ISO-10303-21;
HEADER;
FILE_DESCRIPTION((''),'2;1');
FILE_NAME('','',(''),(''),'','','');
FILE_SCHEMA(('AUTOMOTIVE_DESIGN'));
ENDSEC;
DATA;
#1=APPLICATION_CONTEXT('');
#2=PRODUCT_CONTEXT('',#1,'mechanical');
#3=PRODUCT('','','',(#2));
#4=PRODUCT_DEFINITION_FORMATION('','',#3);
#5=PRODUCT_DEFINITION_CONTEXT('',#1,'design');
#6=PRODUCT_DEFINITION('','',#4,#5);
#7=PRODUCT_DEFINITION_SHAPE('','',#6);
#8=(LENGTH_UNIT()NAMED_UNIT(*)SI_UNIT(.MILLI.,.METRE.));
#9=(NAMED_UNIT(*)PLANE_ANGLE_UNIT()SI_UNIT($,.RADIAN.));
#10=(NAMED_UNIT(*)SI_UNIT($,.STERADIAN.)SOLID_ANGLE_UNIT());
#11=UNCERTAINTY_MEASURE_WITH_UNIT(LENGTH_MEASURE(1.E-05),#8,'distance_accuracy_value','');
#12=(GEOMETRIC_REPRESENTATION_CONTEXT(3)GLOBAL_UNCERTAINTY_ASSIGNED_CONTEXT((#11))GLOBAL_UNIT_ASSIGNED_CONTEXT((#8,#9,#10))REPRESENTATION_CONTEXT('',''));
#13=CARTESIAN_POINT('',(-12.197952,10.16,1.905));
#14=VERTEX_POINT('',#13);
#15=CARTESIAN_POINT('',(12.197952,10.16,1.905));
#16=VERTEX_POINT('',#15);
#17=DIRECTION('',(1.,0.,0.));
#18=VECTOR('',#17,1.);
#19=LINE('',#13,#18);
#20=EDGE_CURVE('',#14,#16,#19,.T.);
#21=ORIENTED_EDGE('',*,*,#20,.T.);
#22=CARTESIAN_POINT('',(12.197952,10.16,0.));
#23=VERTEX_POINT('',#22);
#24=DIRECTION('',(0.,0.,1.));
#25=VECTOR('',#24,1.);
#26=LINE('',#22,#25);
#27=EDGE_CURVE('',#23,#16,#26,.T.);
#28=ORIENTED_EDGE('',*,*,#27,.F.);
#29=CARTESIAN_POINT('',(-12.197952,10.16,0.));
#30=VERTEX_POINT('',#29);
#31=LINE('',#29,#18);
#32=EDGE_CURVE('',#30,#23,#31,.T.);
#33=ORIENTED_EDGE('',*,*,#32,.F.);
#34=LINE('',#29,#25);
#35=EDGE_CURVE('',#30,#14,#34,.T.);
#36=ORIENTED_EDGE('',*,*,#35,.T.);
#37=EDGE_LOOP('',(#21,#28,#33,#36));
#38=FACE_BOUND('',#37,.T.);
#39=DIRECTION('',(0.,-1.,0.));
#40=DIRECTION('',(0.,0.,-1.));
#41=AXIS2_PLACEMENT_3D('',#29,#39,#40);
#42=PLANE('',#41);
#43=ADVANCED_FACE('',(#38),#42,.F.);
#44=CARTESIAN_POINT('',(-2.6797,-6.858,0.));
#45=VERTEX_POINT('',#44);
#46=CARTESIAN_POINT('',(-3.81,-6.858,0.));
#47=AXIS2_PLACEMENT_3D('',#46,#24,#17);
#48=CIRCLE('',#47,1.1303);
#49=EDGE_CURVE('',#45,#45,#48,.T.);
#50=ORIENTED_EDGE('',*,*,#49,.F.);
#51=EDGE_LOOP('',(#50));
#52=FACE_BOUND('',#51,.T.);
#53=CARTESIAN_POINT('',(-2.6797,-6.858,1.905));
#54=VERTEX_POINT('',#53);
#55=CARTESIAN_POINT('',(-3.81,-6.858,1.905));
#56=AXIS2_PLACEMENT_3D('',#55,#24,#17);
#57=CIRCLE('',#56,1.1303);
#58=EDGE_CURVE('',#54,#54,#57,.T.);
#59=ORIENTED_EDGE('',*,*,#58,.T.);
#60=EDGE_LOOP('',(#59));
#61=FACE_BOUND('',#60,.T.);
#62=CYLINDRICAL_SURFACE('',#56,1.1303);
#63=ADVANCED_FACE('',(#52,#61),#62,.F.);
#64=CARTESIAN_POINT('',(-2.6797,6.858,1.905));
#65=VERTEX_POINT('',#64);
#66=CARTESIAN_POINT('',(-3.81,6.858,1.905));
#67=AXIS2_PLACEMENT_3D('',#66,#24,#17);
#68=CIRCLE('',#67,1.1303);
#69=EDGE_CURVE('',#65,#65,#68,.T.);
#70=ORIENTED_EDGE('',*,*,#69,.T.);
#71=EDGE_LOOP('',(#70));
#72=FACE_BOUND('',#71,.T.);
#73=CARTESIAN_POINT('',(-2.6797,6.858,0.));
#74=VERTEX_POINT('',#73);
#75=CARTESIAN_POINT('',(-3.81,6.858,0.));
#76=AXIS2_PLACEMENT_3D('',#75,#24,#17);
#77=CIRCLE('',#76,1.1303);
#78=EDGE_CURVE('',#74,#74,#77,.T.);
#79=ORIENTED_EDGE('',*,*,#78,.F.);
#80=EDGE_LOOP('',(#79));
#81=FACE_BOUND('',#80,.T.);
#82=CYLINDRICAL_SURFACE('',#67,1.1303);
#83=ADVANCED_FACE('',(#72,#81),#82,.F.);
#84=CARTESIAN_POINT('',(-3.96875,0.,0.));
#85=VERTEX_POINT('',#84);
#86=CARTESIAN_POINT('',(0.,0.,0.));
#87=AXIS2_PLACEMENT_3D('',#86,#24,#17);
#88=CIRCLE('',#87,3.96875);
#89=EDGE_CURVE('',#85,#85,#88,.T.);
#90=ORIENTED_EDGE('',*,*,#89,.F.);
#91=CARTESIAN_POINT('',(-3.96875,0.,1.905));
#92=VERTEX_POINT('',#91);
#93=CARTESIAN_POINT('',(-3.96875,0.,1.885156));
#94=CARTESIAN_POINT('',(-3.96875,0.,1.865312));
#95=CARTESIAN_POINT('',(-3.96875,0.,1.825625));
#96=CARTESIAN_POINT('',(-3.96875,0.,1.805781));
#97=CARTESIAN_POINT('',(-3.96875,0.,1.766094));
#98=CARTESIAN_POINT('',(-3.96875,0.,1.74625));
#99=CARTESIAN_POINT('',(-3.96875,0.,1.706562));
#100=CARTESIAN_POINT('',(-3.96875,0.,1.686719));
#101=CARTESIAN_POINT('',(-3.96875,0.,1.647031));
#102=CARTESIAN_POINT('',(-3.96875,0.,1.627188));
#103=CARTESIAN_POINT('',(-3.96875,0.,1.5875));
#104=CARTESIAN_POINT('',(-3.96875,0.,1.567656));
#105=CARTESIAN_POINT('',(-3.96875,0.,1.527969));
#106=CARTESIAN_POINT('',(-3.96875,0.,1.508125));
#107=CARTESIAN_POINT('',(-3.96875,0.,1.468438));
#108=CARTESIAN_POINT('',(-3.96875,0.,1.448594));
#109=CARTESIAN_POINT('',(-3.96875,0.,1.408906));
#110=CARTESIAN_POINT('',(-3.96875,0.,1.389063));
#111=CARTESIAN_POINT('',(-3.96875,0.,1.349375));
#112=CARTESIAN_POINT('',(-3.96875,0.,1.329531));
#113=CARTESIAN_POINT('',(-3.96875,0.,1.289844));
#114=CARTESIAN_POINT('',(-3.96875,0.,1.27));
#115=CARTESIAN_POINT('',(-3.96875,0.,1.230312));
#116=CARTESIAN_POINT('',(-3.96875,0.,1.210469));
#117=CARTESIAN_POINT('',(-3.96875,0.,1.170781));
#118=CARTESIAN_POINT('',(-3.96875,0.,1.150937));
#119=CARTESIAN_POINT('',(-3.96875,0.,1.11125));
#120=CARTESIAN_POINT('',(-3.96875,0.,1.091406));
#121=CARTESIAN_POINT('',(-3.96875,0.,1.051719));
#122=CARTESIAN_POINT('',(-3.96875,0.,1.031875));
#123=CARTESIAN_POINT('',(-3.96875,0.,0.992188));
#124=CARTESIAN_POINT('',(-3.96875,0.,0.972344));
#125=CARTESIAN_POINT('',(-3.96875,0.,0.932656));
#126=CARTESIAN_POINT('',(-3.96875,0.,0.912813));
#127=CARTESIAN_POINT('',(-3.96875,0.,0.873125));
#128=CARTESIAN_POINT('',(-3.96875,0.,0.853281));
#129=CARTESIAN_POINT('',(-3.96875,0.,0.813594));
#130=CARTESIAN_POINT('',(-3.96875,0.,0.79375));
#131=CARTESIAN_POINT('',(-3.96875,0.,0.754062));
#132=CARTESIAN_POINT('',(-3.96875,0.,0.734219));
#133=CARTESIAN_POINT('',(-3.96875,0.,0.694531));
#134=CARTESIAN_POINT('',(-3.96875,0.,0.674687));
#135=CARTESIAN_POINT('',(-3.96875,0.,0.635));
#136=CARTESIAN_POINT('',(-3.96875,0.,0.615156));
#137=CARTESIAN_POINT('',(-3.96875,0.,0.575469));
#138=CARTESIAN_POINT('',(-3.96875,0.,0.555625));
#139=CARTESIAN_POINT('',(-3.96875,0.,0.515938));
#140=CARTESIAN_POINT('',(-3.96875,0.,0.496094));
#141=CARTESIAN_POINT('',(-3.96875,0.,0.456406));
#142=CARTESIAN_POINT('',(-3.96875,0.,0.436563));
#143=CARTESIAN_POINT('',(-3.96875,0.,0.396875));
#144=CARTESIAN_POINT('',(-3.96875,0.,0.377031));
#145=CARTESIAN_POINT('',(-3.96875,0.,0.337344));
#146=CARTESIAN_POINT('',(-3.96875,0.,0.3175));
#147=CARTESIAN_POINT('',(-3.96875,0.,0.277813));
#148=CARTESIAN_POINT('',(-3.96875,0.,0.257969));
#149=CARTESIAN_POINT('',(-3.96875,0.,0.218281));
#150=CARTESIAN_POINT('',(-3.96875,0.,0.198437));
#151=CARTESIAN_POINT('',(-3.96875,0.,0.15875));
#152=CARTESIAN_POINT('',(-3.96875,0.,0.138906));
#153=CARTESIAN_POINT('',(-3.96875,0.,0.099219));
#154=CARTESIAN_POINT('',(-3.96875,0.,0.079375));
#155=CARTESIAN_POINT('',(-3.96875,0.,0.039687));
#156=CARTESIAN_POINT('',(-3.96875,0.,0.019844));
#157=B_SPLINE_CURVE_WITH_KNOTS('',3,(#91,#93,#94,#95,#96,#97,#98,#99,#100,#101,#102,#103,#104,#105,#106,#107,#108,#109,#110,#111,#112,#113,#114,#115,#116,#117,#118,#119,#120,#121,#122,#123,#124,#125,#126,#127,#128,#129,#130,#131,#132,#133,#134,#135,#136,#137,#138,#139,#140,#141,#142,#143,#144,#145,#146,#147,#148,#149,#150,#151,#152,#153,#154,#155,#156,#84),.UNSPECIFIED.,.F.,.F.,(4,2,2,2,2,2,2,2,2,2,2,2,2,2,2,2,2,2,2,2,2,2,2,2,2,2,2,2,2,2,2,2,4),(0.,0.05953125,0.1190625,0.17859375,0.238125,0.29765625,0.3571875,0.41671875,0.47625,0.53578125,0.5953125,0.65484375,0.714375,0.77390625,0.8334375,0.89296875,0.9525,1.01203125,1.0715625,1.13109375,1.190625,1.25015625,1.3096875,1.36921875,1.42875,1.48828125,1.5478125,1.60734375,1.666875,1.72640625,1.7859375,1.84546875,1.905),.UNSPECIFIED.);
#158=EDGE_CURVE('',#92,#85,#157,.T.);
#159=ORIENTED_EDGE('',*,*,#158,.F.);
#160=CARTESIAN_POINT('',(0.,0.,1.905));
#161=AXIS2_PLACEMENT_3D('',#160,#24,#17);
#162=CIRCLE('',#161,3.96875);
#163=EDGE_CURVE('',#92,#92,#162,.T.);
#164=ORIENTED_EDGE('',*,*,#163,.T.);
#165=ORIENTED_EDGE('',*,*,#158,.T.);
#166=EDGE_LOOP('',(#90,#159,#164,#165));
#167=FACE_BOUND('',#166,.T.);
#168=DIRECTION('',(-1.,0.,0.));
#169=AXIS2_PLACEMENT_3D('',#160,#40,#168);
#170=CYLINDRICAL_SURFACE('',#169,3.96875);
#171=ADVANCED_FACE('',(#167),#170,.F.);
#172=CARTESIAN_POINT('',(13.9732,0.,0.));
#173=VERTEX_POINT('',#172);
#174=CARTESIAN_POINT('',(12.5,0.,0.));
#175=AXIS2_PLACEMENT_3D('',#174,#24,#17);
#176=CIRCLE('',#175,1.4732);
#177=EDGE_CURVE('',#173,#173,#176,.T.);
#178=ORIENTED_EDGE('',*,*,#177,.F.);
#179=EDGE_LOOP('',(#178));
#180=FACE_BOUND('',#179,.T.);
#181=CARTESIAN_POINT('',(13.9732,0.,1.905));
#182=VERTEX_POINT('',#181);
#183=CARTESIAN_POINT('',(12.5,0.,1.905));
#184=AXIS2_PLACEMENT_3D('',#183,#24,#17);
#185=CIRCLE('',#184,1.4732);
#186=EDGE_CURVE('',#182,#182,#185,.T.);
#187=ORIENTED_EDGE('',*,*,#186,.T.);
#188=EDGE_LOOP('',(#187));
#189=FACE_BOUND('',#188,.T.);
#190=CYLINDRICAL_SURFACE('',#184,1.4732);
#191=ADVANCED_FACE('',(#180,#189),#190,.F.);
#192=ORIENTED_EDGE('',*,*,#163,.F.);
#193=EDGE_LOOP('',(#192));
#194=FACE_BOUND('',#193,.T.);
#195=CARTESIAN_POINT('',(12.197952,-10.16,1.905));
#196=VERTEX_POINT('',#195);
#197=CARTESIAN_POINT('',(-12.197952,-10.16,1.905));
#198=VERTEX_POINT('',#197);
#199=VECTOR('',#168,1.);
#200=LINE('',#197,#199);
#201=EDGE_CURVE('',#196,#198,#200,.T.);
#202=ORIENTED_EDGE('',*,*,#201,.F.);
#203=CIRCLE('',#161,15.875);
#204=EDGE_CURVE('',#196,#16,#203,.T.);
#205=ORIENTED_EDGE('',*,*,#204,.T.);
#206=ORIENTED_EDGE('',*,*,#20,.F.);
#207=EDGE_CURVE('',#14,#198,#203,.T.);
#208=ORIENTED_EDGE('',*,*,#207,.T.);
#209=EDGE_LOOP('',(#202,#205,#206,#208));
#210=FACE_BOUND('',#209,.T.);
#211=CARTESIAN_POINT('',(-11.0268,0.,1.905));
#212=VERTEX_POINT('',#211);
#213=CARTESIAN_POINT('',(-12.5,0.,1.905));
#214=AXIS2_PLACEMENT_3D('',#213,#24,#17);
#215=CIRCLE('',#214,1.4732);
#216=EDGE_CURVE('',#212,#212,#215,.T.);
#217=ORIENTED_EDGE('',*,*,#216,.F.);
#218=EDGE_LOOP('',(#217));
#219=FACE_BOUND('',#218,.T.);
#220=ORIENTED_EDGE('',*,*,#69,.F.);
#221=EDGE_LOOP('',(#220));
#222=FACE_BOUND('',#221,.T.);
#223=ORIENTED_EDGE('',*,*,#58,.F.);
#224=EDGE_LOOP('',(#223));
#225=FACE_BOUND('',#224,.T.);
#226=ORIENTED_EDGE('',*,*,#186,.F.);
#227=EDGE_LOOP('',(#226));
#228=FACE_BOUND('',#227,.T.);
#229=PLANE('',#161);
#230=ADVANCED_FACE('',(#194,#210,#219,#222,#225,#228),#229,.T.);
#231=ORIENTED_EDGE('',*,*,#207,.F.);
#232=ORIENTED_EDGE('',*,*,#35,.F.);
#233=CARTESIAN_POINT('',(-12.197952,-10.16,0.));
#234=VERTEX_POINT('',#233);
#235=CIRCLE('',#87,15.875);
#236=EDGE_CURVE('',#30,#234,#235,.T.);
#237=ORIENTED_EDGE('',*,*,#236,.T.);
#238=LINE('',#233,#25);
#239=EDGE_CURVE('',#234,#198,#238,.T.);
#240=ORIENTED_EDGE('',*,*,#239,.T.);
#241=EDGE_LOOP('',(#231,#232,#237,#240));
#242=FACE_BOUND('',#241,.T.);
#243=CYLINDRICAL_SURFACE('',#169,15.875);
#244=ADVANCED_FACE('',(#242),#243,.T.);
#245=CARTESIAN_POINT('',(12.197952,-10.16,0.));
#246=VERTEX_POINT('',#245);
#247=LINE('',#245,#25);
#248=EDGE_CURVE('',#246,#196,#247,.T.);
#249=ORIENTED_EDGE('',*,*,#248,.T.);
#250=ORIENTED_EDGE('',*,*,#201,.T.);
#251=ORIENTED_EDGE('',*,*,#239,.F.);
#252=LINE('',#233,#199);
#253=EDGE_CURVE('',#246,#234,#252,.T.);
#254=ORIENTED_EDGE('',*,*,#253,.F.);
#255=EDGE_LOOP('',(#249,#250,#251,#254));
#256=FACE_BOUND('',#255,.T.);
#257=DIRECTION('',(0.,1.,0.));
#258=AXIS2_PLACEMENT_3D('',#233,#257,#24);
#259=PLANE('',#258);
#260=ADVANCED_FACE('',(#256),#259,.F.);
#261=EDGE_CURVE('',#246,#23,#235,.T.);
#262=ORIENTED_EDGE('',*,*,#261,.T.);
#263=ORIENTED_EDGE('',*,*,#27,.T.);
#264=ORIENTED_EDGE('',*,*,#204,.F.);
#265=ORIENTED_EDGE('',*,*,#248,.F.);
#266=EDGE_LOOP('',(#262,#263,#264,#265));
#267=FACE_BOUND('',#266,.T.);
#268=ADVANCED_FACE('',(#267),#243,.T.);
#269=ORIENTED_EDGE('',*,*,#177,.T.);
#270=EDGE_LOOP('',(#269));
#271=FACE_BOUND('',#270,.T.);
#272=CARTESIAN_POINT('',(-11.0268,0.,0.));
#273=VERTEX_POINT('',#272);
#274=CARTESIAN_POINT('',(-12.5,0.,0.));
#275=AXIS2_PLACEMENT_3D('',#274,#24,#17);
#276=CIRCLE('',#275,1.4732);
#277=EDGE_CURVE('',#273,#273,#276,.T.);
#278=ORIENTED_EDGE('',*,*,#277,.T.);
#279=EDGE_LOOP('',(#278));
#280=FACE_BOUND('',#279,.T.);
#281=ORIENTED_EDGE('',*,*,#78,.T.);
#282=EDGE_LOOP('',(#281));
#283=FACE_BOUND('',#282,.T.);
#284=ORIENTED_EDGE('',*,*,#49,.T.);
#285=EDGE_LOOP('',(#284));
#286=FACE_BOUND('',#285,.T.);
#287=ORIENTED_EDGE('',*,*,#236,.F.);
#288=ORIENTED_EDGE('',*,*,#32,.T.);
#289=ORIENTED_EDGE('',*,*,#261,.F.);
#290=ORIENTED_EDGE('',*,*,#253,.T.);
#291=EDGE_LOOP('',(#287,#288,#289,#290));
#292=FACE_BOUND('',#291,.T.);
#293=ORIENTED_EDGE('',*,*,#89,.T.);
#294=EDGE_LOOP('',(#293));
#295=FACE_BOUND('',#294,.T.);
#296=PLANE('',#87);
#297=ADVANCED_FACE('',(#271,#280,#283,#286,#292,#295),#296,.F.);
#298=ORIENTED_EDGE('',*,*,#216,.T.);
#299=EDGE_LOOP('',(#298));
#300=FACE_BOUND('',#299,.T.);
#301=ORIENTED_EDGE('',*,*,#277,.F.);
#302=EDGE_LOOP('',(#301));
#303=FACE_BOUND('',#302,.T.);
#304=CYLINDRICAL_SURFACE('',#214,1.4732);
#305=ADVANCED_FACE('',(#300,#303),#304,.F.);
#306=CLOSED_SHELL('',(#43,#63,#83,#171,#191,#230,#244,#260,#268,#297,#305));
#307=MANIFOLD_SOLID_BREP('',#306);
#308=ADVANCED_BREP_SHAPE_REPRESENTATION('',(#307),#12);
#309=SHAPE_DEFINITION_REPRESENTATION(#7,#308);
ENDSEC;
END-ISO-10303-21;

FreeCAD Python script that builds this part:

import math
import FreeCAD as App
import Part
import Sketcher
from FreeCAD import Vector
Q = App.Units.Quantity

doc = App.newDocument("Part")
body = doc.addObject("PartDesign::Body", "Body")

# Sketch on XY plane
sketch1 = body.newObject("Sketcher::SketchObject", "Sketch")
sketch1.AttachmentSupport = (doc.getObject("XY_Plane"), [""])
sketch1.MapMode = "FlatFace"
sketch1.addGeometry([
    Part.Circle(Vector(0, 0, 0), Vector(0, 0, 1), 15.875),
    Part.Circle(Vector(0, 0, 0), Vector(0, 0, 1), 3.96875),
], False)
sketch1.addConstraint([
    Sketcher.Constraint("Coincident", 0, 3, -1, 1),
    Sketcher.Constraint("Coincident", 1, 3, -1, 1),
    Sketcher.Constraint("Diameter", 0, Q("1.25 in")),
    Sketcher.Constraint("Diameter", 1, Q("0.3125 in")),
])
pad1 = body.newObject("PartDesign::Pad", "Pad")
pad1.Profile = sketch1
pad1.Length = Q("0.075 in")

# Sketch on XY plane
sketch2 = body.newObject("Sketcher::SketchObject", "Sketch001")
sketch2.AttachmentSupport = (doc.getObject("XY_Plane"), [""])
sketch2.MapMode = "FlatFace"
sketch2.AttachmentOffset = App.Placement(Vector(0, 0, 0.075 * 25.4), App.Rotation())
sketch2.addGeometry([
    Part.Circle(Vector(-12.5, 0, 0), Vector(0, 0, 1), 1.4732),
    Part.Circle(Vector(12.5, 0, 0), Vector(0, 0, 1), 1.4732),
], False)
sketch2.addConstraint([
    Sketcher.Constraint("Equal", 0, 1),
    Sketcher.Constraint("Symmetric", 0, 3, 1, 3, -1, 1),
    Sketcher.Constraint("PointOnObject", 0, 3, -1),
    Sketcher.Constraint("Diameter", 0, Q("0.116 in")),
    Sketcher.Constraint("DistanceX", 0, 3, -1, 1, 12.5),
])
doc.recompute()
hole = body.newObject("PartDesign::Hole", "Hole")
hole.Profile = sketch2
hole.ThreadType = "None"
hole.Diameter = Q("0.116 in")
hole.DepthType = "ThroughAll"

# Sketch on XY plane
sketch3 = body.newObject("Sketcher::SketchObject", "Sketch002")
sketch3.AttachmentSupport = (doc.getObject("XY_Plane"), [""])
sketch3.MapMode = "FlatFace"
sketch3.AttachmentOffset = App.Placement(Vector(0, 0, 0.075 * 25.4), App.Rotation())
sketch3.addGeometry([
    Part.Circle(Vector(-3.81, 6.858, 0), Vector(0, 0, 1), 1.1303),
    Part.Circle(Vector(-3.81, -6.858, 0), Vector(0, 0, 1), 1.1303),
], False)
sketch3.addConstraint([
    Sketcher.Constraint("Equal", 0, 1),
    Sketcher.Constraint("Symmetric", 0, 3, 1, 3, -1),
    Sketcher.Constraint("Diameter", 0, Q("0.089 in")),
    Sketcher.Constraint("DistanceX", 0, 3, -1, 1, Q("0.15 in")),
    Sketcher.Constraint("DistanceY", -1, 1, 0, 3, Q("0.27 in")),
])
doc.recompute()
hole2 = body.newObject("PartDesign::Hole", "Hole001")
hole2.Profile = sketch3
hole2.ThreadType = "None"
hole2.Diameter = Q("0.089 in")
hole2.DepthType = "ThroughAll"

# Sketch on XY plane
sketch4 = body.newObject("Sketcher::SketchObject", "Sketch003")
sketch4.AttachmentSupport = (doc.getObject("XY_Plane"), [""])
sketch4.MapMode = "FlatFace"
sketch4.AttachmentOffset = App.Placement(Vector(0, 0, 0.075 * 25.4), App.Rotation())
sketch4.addGeometry([
    Part.LineSegment(Vector(12.197952, -10.16, 0), Vector(-12.197952, -10.16, 0)),
    Part.ArcOfCircle(Part.Circle(Vector(0, 0, 0), Vector(0, 0, 1), 15.875), math.radians(-140.208181), math.radians(-39.791819)),
    Part.LineSegment(Vector(-12.197952, 10.16, 0), Vector(12.197952, 10.16, 0)),
    Part.ArcOfCircle(Part.Circle(Vector(0, 0, 0), Vector(0, 0, 1), 15.875), math.radians(39.791819), math.radians(140.208181)),
], False)
sketch4.addConstraint([
    Sketcher.Constraint("Coincident", 0, 1, 1, 2),
    Sketcher.Constraint("Coincident", 1, 1, 0, 2),
    Sketcher.Constraint("Coincident", 2, 1, 3, 2),
    Sketcher.Constraint("Coincident", 3, 1, 2, 2),
    Sketcher.Constraint("Horizontal", 0),
    Sketcher.Constraint("Horizontal", 2),
    Sketcher.Constraint("Coincident", 1, 3, -1, 1),
    Sketcher.Constraint("Coincident", 3, 3, -1, 1),
    Sketcher.Constraint("Equal", 1, 3),
    Sketcher.Constraint("Vertical", 1, 1, 2, 1),
    Sketcher.Constraint("Radius", 1, Q("0.625 in")),
    Sketcher.Constraint("DistanceY", 0, 1, -1, 1, Q("0.4 in")),
])
pocket1 = body.newObject("PartDesign::Pocket", "Pocket")
pocket1.Profile = sketch4
pocket1.Type = "ThroughAll"

doc.recompute()
